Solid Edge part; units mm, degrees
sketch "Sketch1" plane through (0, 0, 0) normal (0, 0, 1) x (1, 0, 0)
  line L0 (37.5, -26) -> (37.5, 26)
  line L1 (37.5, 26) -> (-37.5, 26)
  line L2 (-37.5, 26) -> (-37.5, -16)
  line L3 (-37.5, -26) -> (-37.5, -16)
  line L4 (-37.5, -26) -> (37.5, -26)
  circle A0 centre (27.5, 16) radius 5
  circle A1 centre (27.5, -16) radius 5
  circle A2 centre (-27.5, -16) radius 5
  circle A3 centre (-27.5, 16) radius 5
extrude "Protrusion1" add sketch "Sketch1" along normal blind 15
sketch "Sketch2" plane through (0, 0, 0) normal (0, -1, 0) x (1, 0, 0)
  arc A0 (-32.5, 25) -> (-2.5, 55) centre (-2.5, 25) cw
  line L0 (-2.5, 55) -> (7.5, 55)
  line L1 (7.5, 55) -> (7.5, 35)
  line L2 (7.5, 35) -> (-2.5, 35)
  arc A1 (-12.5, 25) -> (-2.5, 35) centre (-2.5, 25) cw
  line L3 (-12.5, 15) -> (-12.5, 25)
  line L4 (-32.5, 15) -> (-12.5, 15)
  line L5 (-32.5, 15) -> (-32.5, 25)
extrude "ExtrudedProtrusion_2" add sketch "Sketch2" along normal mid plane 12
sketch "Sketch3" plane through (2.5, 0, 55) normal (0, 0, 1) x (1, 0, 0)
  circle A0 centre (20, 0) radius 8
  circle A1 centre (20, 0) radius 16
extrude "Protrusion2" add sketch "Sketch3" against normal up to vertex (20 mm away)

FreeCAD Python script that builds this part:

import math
import FreeCAD as App
import Part
import Sketcher
from FreeCAD import Vector

doc = App.newDocument("Part")
params = doc.addObject("Spreadsheet::Sheet", "Params")
for row, (alias, value) in enumerate([
    ("sketch1_diameter", "10 mm"),
    ("sketch1_width", "75 mm"),
    ("sketch1_height", "52 mm"),
    ("pad1_length", "15 mm"),
    ("sketch2_radius", "30 mm"),
    ("sketch2_radius2", "10 mm"),
    ("sketch2_width", "10 mm"),
    ("pad2_length", "12 mm"),
    ("sketch3_diameter", "32 mm"),
    ("sketch3_diameter2", "16 mm"),
    ("pad3_length", "20 mm"),
], start=1):
    params.set(f"A{row}", alias)
    params.set(f"B{row}", "=" + value)
    params.setAlias(f"B{row}", alias)

body = doc.addObject("PartDesign::Body", "Body")

# Sketch on XY plane
sketch1 = doc.addObject("Sketcher::SketchObject", "Sketch")
body.addObject(sketch1)
sketch1.AttachmentSupport = (doc.XY_Plane, [""])
sketch1.MapMode = "FlatFace"
sketch1.addGeometry(Part.LineSegment(Vector(-37.5, -26, 0), Vector(37.5, -26, 0)), False)
sketch1.addGeometry(Part.LineSegment(Vector(37.5, -26, 0), Vector(37.5, 26, 0)), False)
sketch1.addGeometry(Part.LineSegment(Vector(37.5, 26, 0), Vector(-37.5, 26, 0)), False)
sketch1.addGeometry(Part.LineSegment(Vector(-37.5, 26, 0), Vector(-37.5, -26, 0)), False)
sketch1.addGeometry(Part.Circle(Vector(-27.5, -16, 0), Vector(0, 0, 1), 5), False)
sketch1.addGeometry(Part.Circle(Vector(27.5, -16, 0), Vector(0, 0, 1), 5), False)
sketch1.addGeometry(Part.Circle(Vector(-27.5, 16, 0), Vector(0, 0, 1), 5), False)
sketch1.addGeometry(Part.Circle(Vector(27.5, 16, 0), Vector(0, 0, 1), 5), False)
sketch1.addConstraint(Sketcher.Constraint("Coincident", 0, 2, 1, 1))
sketch1.addConstraint(Sketcher.Constraint("Coincident", 1, 2, 2, 1))
sketch1.addConstraint(Sketcher.Constraint("Coincident", 2, 2, 3, 1))
sketch1.addConstraint(Sketcher.Constraint("Coincident", 3, 2, 0, 1))
sketch1.addConstraint(Sketcher.Constraint("Horizontal", 0))
sketch1.addConstraint(Sketcher.Constraint("Vertical", 1))
sketch1.addConstraint(Sketcher.Constraint("Horizontal", 2))
sketch1.addConstraint(Sketcher.Constraint("Vertical", 3))
sketch1.addConstraint(Sketcher.Constraint("Equal", 4, 5))
sketch1.addConstraint(Sketcher.Constraint("Equal", 5, 6))
sketch1.addConstraint(Sketcher.Constraint("Equal", 6, 7))
sketch1.addConstraint(Sketcher.Constraint("Symmetric", 5, 3, 6, 3, -1, 1))
sketch1.addConstraint(Sketcher.Constraint("Symmetric", 4, 3, 7, 3, -1, 1))
sketch1.addConstraint(Sketcher.Constraint("Symmetric", 0, 2, 2, 2, -1, 1))
sketch1.addConstraint(Sketcher.Constraint("Symmetric", 4, 3, 5, 3, -2))
sketch1.addConstraint(Sketcher.Constraint("Diameter", 4, 10.0))
sketch1.addConstraint(Sketcher.Constraint("DistanceX", 0, 1, 0, 2, 75.0))
sketch1.addConstraint(Sketcher.Constraint("DistanceY", 1, 1, 1, 2, 52.0))
sketch1.addConstraint(Sketcher.Constraint("DistanceY", 4, 3, -1, 1, 16.0))
sketch1.addConstraint(Sketcher.Constraint("DistanceX", 4, 3, 5, 3, 55.0))
sketch1.setExpression("Constraints[15]", "Params.sketch1_diameter")
sketch1.setExpression("Constraints[16]", "Params.sketch1_width")
sketch1.setExpression("Constraints[17]", "Params.sketch1_height")
pad1 = doc.addObject("PartDesign::Pad", "Pad")
body.addObject(pad1)
pad1.Profile = sketch1
pad1.setExpression("Length", "Params.pad1_length")

# Sketch on XZ plane
sketch2 = doc.addObject("Sketcher::SketchObject", "Sketch001")
body.addObject(sketch2)
sketch2.AttachmentSupport = (doc.XZ_Plane, [""])
sketch2.MapMode = "FlatFace"
sketch2.addGeometry(Part.ArcOfCircle(Part.Circle(Vector(-2.5, 25, 0), Vector(0, 0, 1), 30), math.radians(90), math.radians(180)), False)
sketch2.addGeometry(Part.LineSegment(Vector(-32.5, 25, 0), Vector(-32.5, 15, 0)), False)
sketch2.addGeometry(Part.LineSegment(Vector(-32.5, 15, 0), Vector(-12.5, 15, 0)), False)
sketch2.addGeometry(Part.LineSegment(Vector(-12.5, 15, 0), Vector(-12.5, 25, 0)), False)
sketch2.addGeometry(Part.ArcOfCircle(Part.Circle(Vector(-2.5, 25, 0), Vector(0, 0, 1), 10), math.radians(90), math.radians(180)), False)
sketch2.addGeometry(Part.LineSegment(Vector(-2.5, 35, 0), Vector(7.5, 35, 0)), False)
sketch2.addGeometry(Part.LineSegment(Vector(7.5, 35, 0), Vector(7.5, 55, 0)), False)
sketch2.addGeometry(Part.LineSegment(Vector(7.5, 55, 0), Vector(-2.5, 55, 0)), False)
sketch2.addConstraint(Sketcher.Constraint("Tangent", 0, 2, 1, 1))
sketch2.addConstraint(Sketcher.Constraint("Coincident", 1, 2, 2, 1))
sketch2.addConstraint(Sketcher.Constraint("Coincident", 2, 2, 3, 1))
sketch2.addConstraint(Sketcher.Constraint("Tangent", 3, 2, 4, 2))
sketch2.addConstraint(Sketcher.Constraint("Tangent", 4, 1, 5, 1))
sketch2.addConstraint(Sketcher.Constraint("Coincident", 5, 2, 6, 1))
sketch2.addConstraint(Sketcher.Constraint("Coincident", 6, 2, 7, 1))
sketch2.addConstraint(Sketcher.Constraint("Tangent", 7, 2, 0, 1))
sketch2.addConstraint(Sketcher.Constraint("Vertical", 1))
sketch2.addConstraint(Sketcher.Constraint("Horizontal", 2))
sketch2.addConstraint(Sketcher.Constraint("Vertical", 3))
sketch2.addConstraint(Sketcher.Constraint("Horizontal", 5))
sketch2.addConstraint(Sketcher.Constraint("Vertical", 6))
sketch2.addConstraint(Sketcher.Constraint("Horizontal", 7))
sketch2.addConstraint(Sketcher.Constraint("Coincident", 4, 3, 0, 3))
sketch2.addConstraint(Sketcher.Constraint("Equal", 7, 1))
sketch2.addConstraint(Sketcher.Constraint("Radius", 0, 30.0))
sketch2.addConstraint(Sketcher.Constraint("Radius", 4, 10.0))
sketch2.addConstraint(Sketcher.Constraint("DistanceX", 5, 1, 5, 2, 10.0))
sketch2.addConstraint(Sketcher.Constraint("DistanceY", -1, 1, 0, 3, 25.0))
sketch2.addConstraint(Sketcher.Constraint("DistanceX", 0, 3, -1, 1, 2.5))
sketch2.setExpression("Constraints[16]", "Params.sketch2_radius")
sketch2.setExpression("Constraints[17]", "Params.sketch2_radius2")
sketch2.setExpression("Constraints[18]", "Params.sketch2_width")
pad2 = doc.addObject("PartDesign::Pad", "Pad001")
body.addObject(pad2)
pad2.Profile = sketch2
pad2.setExpression("Length", "Params.pad2_length")
pad2.Midplane = True

# Sketch on XY plane
sketch3 = doc.addObject("Sketcher::SketchObject", "Sketch002")
body.addObject(sketch3)
sketch3.AttachmentSupport = (doc.XY_Plane, [""])
sketch3.MapMode = "FlatFace"
sketch3.AttachmentOffset = App.Placement(Vector(0, 0, 55), App.Rotation())
sketch3.addGeometry(Part.Circle(Vector(22.5, 0, 0), Vector(0, 0, 1), 16), False)
sketch3.addGeometry(Part.Circle(Vector(22.5, 0, 0), Vector(0, 0, 1), 8), False)
sketch3.addConstraint(Sketcher.Constraint("Coincident", 1, 3, 0, 3))
sketch3.addConstraint(Sketcher.Constraint("PointOnObject", 0, 3, -1))
sketch3.addConstraint(Sketcher.Constraint("Diameter", 0, 32.0))
sketch3.addConstraint(Sketcher.Constraint("Diameter", 1, 16.0))
sketch3.addConstraint(Sketcher.Constraint("DistanceX", -1, 1, 0, 3, 22.5))
sketch3.setExpression("Constraints[2]", "Params.sketch3_diameter")
sketch3.setExpression("Constraints[3]", "Params.sketch3_diameter2")
pad3 = doc.addObject("PartDesign::Pad", "Pad002")
body.addObject(pad3)
pad3.Profile = sketch3
pad3.setExpression("Length", "Params.pad3_length")
pad3.Reversed = True

doc.recompute()
